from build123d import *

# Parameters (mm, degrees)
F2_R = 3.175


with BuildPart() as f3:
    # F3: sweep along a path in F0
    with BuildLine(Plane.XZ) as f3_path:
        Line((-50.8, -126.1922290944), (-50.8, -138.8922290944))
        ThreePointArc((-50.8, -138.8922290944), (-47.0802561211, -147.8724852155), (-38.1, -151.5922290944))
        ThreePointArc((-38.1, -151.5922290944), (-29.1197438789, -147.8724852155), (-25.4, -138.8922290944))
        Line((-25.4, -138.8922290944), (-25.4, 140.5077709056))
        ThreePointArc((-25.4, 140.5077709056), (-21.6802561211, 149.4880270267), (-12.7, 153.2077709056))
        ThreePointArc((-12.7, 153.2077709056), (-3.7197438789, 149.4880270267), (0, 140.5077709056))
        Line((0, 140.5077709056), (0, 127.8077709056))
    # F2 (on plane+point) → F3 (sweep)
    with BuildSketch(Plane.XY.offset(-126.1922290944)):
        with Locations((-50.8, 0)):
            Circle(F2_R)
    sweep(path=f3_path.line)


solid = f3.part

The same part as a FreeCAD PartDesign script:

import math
import FreeCAD as App
import Part
import Sketcher
Q = App.Units.Quantity

doc = App.newDocument("Part")
body = doc.addObject("PartDesign::Body", "Body")

# Sketch on XY plane
sketch1 = doc.addObject("Sketcher::SketchObject", "Sketch")
body.addObject(sketch1)
sketch1.AttachmentSupport = (doc.XY_Plane, [""])
sketch1.MapMode = "FlatFace"
sketch1.AttachmentOffset = App.Placement(App.Vector(0, 0, -126.192229), App.Rotation())
sketch1.addGeometry(Part.Circle(App.Vector(-50.8, 0, 0), App.Vector(0, 0, 1), 3.2), False)
sketch1.addConstraint([
    Sketcher.Constraint("PointOnObject", 0, 3, -1),
    Sketcher.Constraint("Diameter", 0, Q("0.25 in")),
    Sketcher.Constraint("DistanceX", 0, 3, -1, 1, Q("2 in")),
])

# Sketch on XZ plane
sketch2 = doc.addObject("Sketcher::SketchObject", "Sketch001")
body.addObject(sketch2)
sketch2.AttachmentSupport = (doc.XZ_Plane, [""])
sketch2.MapMode = "FlatFace"
sketch2.addGeometry([
    Part.LineSegment(App.Vector(-51, -126, 0), App.Vector(-51, -139, 0)),  # 0
    Part.ArcOfCircle(Part.Circle(App.Vector(-38, -139, 0), App.Vector(0, 0, 1), 13), math.radians(180), math.radians(270)),  # 1
    Part.ArcOfCircle(Part.Circle(App.Vector(-38, -139, 0), App.Vector(0, 0, 1), 13), math.radians(-90), math.radians(0)),  # 2
    Part.LineSegment(App.Vector(-25, -139, 0), App.Vector(-25, 141, 0)),  # 3
    Part.ArcOfCircle(Part.Circle(App.Vector(-13, 141, 0), App.Vector(0, 0, 1), 13), math.radians(90), math.radians(180)),  # 4
    Part.ArcOfCircle(Part.Circle(App.Vector(-13, 141, 0), App.Vector(0, 0, 1), 13), math.radians(0), math.radians(90)),  # 5
    Part.LineSegment(App.Vector(0, 141, 0), App.Vector(0, 128, 0)),  # 6
], False)
sketch2.addConstraint([
    Sketcher.Constraint("Tangent", 0, 2, 1, 1),
    Sketcher.Constraint("Tangent", 1, 2, 2, 1),
    Sketcher.Constraint("Tangent", 2, 2, 3, 1),
    Sketcher.Constraint("Tangent", 3, 2, 4, 2),
    Sketcher.Constraint("Tangent", 4, 1, 5, 2),
    Sketcher.Constraint("Tangent", 5, 1, 6, 1),
    Sketcher.Constraint("Vertical", 0),
    Sketcher.Constraint("Vertical", 3),
    Sketcher.Constraint("Vertical", 6),
    Sketcher.Constraint("Equal", 1, 2),
    Sketcher.Constraint("Equal", 2, 4),
    Sketcher.Constraint("Equal", 4, 5),
    Sketcher.Constraint("PointOnObject", 5, 1, -2),
    Sketcher.Constraint("Vertical", 2, 3, 1, 2),
    Sketcher.Constraint("Vertical", 5, 3, 4, 1),
    Sketcher.Constraint("Equal", 0, 6),
    Sketcher.Constraint("Radius", 1, Q("0.5 in")),
    Sketcher.Constraint("DistanceY", 3, 1, 3, 2, Q("11 in")),
    Sketcher.Constraint("DistanceY", 0, 2, 0, 1, Q("0.5 in")),
    Sketcher.Constraint("DistanceY", 1, 3, -1, 1, Q("138.892229 mm")),
])
doc.recompute()

additivepipe = doc.addObject("PartDesign::AdditivePipe", "AdditivePipe")
body.addObject(additivepipe)
additivepipe.Profile = sketch1
additivepipe.Spine = (sketch2, ["Edge1", "Edge2", "Edge3", "Edge4", "Edge5", "Edge6", "Edge7"])

doc.recompute()
